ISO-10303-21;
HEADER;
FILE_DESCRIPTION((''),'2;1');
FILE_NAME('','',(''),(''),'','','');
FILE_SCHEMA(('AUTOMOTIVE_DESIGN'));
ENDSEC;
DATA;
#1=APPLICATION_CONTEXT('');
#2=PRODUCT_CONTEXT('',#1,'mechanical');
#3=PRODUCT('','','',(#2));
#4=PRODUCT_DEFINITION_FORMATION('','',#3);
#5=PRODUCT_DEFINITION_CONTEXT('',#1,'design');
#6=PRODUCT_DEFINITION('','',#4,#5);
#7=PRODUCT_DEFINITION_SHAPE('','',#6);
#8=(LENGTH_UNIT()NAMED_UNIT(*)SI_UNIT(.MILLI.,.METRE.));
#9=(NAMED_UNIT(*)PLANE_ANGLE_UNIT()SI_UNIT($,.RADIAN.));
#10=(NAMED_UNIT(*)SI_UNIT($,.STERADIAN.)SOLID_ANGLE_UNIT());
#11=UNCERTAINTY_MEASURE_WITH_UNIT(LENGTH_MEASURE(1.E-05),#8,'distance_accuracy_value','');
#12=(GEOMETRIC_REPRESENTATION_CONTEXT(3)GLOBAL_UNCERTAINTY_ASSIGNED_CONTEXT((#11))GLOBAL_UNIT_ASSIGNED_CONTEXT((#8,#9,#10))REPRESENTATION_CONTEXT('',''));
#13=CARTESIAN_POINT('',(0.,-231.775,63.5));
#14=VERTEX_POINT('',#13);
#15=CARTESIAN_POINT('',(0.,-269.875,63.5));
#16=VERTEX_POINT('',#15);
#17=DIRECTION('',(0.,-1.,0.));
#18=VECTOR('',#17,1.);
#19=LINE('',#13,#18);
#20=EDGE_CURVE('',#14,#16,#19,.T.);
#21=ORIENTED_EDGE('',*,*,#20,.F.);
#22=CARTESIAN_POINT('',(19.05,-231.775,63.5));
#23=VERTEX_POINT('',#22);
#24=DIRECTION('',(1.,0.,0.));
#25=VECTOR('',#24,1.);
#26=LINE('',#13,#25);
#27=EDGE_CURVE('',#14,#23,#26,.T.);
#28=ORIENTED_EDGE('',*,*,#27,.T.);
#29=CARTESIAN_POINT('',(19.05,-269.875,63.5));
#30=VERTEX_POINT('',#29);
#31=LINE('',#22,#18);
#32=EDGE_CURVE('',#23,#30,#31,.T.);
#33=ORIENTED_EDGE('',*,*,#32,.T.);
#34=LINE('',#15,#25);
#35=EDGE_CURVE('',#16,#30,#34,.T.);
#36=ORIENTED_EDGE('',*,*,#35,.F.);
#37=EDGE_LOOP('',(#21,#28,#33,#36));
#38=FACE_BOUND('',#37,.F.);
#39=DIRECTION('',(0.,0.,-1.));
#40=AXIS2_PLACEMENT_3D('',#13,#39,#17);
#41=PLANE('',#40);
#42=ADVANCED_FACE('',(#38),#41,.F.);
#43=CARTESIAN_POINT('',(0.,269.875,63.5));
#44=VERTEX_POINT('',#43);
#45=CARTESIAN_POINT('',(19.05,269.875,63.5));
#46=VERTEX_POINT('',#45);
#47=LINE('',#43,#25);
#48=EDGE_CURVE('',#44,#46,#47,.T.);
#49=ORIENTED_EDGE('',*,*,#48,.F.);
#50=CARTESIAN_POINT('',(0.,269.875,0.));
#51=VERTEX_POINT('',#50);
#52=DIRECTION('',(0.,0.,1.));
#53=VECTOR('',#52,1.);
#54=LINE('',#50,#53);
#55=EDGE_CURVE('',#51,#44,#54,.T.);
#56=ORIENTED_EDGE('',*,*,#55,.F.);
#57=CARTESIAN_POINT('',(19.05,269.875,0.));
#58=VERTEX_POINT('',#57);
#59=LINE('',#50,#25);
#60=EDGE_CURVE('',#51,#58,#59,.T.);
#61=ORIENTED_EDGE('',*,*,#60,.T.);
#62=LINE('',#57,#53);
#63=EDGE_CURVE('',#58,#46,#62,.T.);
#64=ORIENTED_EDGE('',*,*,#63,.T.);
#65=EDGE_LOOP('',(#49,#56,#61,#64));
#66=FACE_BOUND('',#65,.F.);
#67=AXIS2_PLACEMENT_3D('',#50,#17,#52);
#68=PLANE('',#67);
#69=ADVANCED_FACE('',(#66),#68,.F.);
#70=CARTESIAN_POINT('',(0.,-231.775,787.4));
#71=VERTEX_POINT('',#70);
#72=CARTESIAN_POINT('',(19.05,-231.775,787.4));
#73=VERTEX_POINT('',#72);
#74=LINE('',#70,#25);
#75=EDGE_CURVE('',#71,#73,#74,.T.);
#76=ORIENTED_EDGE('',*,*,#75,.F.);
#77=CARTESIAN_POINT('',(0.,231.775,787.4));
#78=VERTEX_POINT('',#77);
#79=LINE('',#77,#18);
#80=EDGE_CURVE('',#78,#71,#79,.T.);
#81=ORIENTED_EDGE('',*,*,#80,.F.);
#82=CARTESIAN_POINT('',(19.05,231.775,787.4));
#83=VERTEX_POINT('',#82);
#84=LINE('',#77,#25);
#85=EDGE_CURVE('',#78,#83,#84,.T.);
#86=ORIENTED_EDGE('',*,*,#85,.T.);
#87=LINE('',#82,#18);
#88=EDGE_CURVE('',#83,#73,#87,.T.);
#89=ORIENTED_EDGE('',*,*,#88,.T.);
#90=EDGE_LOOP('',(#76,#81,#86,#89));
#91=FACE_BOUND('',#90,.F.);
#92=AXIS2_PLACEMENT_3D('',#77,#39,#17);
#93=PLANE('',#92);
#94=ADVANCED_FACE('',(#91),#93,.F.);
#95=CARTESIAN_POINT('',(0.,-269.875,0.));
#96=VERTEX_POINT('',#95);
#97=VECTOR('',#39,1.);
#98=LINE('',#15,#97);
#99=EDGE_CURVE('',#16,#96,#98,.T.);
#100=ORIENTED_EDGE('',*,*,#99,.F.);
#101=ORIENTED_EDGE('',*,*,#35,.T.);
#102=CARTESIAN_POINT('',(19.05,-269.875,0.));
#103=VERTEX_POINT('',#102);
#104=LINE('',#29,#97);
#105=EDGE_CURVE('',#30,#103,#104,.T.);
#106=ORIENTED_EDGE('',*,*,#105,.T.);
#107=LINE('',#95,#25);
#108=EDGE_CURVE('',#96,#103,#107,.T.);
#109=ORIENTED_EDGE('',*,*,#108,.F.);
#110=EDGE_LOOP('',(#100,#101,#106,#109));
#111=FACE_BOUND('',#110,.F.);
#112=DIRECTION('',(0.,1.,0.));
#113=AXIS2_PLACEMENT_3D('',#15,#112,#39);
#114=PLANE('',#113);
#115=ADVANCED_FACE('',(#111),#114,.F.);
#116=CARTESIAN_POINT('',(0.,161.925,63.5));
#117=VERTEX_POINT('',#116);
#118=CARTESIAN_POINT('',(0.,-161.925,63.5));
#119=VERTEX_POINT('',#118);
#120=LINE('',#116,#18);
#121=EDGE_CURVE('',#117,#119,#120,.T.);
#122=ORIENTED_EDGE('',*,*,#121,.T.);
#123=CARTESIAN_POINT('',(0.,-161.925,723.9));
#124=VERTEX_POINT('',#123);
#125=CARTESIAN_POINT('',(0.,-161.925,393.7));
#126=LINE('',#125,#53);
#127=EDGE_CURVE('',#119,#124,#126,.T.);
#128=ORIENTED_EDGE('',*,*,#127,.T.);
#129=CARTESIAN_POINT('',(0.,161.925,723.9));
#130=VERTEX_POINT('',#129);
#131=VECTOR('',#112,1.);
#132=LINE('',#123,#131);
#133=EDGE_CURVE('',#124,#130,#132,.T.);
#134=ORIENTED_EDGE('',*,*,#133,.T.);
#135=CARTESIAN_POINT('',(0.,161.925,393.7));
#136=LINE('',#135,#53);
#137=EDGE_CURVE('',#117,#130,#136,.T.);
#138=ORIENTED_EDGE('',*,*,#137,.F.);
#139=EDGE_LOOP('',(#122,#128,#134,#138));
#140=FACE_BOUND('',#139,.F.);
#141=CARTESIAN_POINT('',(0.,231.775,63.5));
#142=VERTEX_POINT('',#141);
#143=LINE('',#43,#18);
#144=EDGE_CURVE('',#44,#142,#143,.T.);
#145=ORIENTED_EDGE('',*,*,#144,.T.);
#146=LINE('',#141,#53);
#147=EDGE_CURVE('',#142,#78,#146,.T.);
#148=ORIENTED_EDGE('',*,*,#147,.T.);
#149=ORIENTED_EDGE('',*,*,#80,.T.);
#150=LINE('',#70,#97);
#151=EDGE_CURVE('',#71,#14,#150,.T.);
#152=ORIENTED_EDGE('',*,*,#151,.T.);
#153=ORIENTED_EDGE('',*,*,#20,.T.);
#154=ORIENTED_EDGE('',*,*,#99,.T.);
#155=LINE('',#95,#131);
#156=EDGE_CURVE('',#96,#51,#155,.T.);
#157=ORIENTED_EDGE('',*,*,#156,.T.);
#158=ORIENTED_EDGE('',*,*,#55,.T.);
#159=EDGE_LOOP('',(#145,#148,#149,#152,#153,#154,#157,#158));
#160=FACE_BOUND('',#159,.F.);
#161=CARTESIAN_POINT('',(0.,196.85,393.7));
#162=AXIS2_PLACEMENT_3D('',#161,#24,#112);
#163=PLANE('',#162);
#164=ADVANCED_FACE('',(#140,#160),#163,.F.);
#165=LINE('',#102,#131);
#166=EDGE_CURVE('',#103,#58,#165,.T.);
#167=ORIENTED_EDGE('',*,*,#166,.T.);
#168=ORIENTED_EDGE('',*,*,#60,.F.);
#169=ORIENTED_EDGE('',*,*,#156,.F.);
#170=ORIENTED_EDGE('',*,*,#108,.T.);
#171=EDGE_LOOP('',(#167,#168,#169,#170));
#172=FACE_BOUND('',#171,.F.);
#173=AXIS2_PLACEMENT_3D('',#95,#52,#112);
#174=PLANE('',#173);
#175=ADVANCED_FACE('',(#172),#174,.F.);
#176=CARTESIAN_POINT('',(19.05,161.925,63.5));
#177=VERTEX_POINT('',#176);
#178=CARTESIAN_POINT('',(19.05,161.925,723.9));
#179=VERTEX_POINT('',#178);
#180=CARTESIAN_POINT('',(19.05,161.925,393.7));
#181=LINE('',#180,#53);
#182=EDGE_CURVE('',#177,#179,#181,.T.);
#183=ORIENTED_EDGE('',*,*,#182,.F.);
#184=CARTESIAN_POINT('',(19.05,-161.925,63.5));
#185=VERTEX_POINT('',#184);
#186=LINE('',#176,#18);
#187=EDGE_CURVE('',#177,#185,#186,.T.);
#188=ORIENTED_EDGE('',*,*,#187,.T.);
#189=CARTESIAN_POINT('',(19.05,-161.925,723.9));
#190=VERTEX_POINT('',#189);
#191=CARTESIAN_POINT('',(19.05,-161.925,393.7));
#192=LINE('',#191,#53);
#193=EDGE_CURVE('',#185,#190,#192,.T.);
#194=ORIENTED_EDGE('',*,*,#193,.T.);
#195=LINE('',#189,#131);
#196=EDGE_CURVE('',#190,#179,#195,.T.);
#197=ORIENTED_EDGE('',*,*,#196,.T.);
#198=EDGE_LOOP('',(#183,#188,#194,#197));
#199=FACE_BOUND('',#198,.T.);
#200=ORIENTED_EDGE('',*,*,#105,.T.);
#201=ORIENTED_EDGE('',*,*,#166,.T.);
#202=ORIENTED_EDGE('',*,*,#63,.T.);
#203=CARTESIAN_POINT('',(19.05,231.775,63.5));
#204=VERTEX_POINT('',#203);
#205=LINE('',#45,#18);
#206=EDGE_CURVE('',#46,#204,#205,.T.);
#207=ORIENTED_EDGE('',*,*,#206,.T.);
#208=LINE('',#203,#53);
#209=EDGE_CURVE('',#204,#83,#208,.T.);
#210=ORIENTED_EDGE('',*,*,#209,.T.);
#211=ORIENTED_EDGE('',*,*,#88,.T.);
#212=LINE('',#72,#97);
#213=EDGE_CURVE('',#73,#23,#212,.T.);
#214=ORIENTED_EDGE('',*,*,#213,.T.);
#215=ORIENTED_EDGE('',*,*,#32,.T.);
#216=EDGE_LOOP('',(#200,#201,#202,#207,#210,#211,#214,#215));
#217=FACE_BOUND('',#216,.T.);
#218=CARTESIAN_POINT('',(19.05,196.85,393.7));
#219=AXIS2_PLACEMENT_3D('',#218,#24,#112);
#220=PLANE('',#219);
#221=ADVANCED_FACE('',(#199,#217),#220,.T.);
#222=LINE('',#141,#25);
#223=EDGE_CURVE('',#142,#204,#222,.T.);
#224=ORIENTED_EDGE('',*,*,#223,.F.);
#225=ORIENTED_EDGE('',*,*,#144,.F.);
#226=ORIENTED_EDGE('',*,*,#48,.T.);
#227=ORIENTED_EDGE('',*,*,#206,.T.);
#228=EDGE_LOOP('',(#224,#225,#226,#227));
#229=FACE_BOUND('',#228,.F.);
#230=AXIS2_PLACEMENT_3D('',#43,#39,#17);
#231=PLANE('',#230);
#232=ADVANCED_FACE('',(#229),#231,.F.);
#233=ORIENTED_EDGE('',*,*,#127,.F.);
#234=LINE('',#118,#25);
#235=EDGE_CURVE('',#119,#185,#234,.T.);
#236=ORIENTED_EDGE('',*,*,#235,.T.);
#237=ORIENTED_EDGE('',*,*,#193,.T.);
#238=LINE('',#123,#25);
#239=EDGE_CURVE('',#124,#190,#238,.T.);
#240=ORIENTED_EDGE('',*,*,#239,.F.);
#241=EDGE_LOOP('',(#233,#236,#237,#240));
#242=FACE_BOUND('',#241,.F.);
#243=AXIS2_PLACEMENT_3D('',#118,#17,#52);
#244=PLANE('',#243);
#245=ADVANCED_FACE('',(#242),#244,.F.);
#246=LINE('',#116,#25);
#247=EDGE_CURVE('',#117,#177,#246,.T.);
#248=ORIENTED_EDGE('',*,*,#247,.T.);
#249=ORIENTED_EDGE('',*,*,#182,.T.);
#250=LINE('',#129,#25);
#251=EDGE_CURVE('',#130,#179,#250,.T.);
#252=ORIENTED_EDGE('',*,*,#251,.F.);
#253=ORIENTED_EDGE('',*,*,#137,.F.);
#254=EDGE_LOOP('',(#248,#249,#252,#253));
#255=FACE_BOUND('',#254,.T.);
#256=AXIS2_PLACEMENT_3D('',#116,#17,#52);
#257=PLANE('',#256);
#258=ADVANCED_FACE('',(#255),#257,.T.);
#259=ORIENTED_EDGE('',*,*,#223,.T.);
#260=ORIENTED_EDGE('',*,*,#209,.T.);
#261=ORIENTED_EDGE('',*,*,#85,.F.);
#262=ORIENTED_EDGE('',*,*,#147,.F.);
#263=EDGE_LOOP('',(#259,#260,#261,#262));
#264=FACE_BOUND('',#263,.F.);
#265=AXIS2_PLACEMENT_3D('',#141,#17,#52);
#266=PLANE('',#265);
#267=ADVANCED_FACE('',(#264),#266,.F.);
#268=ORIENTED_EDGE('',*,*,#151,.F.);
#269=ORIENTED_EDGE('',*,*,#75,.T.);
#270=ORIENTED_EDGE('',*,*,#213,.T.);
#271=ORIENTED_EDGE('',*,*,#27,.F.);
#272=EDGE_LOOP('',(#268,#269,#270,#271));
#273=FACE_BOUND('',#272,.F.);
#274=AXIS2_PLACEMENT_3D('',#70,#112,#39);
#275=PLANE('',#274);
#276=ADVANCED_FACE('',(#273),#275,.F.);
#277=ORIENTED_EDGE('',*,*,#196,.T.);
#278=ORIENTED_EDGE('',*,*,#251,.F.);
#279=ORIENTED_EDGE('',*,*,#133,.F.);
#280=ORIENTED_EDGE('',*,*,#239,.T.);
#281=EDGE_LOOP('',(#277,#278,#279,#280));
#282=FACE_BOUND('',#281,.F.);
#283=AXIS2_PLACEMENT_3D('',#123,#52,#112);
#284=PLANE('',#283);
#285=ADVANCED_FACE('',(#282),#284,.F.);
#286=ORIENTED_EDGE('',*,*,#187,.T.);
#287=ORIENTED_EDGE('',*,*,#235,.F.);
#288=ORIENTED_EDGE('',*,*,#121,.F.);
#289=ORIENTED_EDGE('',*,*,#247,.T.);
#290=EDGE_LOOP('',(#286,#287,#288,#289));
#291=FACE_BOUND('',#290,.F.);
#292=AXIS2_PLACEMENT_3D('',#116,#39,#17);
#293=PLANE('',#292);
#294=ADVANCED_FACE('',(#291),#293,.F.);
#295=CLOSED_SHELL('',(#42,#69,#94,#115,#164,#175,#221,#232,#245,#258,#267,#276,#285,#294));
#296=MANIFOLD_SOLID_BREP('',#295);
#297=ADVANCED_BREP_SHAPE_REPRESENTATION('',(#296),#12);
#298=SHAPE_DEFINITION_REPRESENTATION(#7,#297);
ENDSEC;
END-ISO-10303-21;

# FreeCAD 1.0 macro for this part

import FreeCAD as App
import Part
import Sketcher
from FreeCAD import Vector
Q = App.Units.Quantity

doc = App.newDocument("Part")
body = doc.addObject("PartDesign::Body", "Body")

sketch1 = body.newObject("Sketcher::SketchObject", "Sketch")
sketch1.AttachmentSupport = (doc.getObject("YZ_Plane"), [""])
sketch1.MapMode = "FlatFace"
sketch1.addGeometry(Part.LineSegment(Vector(232, 64, 0), Vector(232, 787, 0)), False)
sketch1.addGeometry(Part.LineSegment(Vector(232, 787, 0), Vector(-232, 787, 0)), False)
sketch1.addGeometry(Part.LineSegment(Vector(-232, 787, 0), Vector(-232, 64, 0)), False)
sketch1.addGeometry(Part.LineSegment(Vector(-232, 64, 0), Vector(-270, 64, 0)), False)
sketch1.addGeometry(Part.LineSegment(Vector(-270, 64, 0), Vector(-270, 0, 0)), False)
sketch1.addGeometry(Part.LineSegment(Vector(-270, 0, 0), Vector(270, 0, 0)), False)
sketch1.addGeometry(Part.LineSegment(Vector(270, 0, 0), Vector(270, 64, 0)), False)
sketch1.addGeometry(Part.LineSegment(Vector(270, 64, 0), Vector(232, 64, 0)), False)
sketch1.addGeometry(Part.LineSegment(Vector(162, 724, 0), Vector(162, 64, 0)), False)
sketch1.addGeometry(Part.LineSegment(Vector(162, 64, 0), Vector(-162, 64, 0)), False)
sketch1.addGeometry(Part.LineSegment(Vector(-162, 64, 0), Vector(-162, 724, 0)), False)
sketch1.addGeometry(Part.LineSegment(Vector(-162, 724, 0), Vector(162, 724, 0)), False)
sketch1.addConstraint(Sketcher.Constraint("Coincident", 0, 2, 1, 1))
sketch1.addConstraint(Sketcher.Constraint("Coincident", 1, 2, 2, 1))
sketch1.addConstraint(Sketcher.Constraint("Coincident", 2, 2, 3, 1))
sketch1.addConstraint(Sketcher.Constraint("Coincident", 3, 2, 4, 1))
sketch1.addConstraint(Sketcher.Constraint("Coincident", 4, 2, 5, 1))
sketch1.addConstraint(Sketcher.Constraint("Coincident", 5, 2, 6, 1))
sketch1.addConstraint(Sketcher.Constraint("Coincident", 6, 2, 7, 1))
sketch1.addConstraint(Sketcher.Constraint("Coincident", 7, 2, 0, 1))
sketch1.addConstraint(Sketcher.Constraint("Coincident", 8, 2, 9, 1))
sketch1.addConstraint(Sketcher.Constraint("Coincident", 9, 2, 10, 1))
sketch1.addConstraint(Sketcher.Constraint("Coincident", 10, 2, 11, 1))
sketch1.addConstraint(Sketcher.Constraint("Coincident", 11, 2, 8, 1))
sketch1.addConstraint(Sketcher.Constraint("Vertical", 0))
sketch1.addConstraint(Sketcher.Constraint("Horizontal", 1))
sketch1.addConstraint(Sketcher.Constraint("Vertical", 2))
sketch1.addConstraint(Sketcher.Constraint("Horizontal", 3))
sketch1.addConstraint(Sketcher.Constraint("Vertical", 4))
sketch1.addConstraint(Sketcher.Constraint("Horizontal", 5))
sketch1.addConstraint(Sketcher.Constraint("Vertical", 6))
sketch1.addConstraint(Sketcher.Constraint("Horizontal", 7))
sketch1.addConstraint(Sketcher.Constraint("Vertical", 8))
sketch1.addConstraint(Sketcher.Constraint("Horizontal", 9))
sketch1.addConstraint(Sketcher.Constraint("Vertical", 10))
sketch1.addConstraint(Sketcher.Constraint("Horizontal", 11))
sketch1.addConstraint(Sketcher.Constraint("Symmetric", 4, 2, 5, 2, -1, 1))
sketch1.addConstraint(Sketcher.Constraint("Symmetric", 2, 2, 7, 2, -2))
sketch1.addConstraint(Sketcher.Constraint("Horizontal", 7, 2, 8, 2))
sketch1.addConstraint(Sketcher.Constraint("DistanceY", 8, 2, 8, 1, Q("26 in")))
sketch1.addConstraint(Sketcher.Constraint("DistanceX", 3, 2, 3, 1, Q("1.5 in")))
sketch1.addConstraint(Sketcher.Constraint("DistanceY", 0, 1, 0, 2, Q("28.5 in")))
sketch1.addConstraint(Sketcher.Constraint("DistanceY", 4, 2, 4, 1, Q("2.5 in")))
sketch1.addConstraint(Sketcher.Constraint("DistanceX", 3, 2, 8, 2, Q("17 in")))
sketch1.addConstraint(Sketcher.Constraint("DistanceX", 1, 2, 1, 1, Q("18.25 in")))
sketch1.addConstraint(Sketcher.Constraint("DistanceX", 9, 2, 9, 1, Q("12.75 in")))
pad1 = body.newObject("PartDesign::Pad", "Pad")
pad1.Profile = sketch1
pad1.Length = Q("0.75 in")

doc.recompute()
